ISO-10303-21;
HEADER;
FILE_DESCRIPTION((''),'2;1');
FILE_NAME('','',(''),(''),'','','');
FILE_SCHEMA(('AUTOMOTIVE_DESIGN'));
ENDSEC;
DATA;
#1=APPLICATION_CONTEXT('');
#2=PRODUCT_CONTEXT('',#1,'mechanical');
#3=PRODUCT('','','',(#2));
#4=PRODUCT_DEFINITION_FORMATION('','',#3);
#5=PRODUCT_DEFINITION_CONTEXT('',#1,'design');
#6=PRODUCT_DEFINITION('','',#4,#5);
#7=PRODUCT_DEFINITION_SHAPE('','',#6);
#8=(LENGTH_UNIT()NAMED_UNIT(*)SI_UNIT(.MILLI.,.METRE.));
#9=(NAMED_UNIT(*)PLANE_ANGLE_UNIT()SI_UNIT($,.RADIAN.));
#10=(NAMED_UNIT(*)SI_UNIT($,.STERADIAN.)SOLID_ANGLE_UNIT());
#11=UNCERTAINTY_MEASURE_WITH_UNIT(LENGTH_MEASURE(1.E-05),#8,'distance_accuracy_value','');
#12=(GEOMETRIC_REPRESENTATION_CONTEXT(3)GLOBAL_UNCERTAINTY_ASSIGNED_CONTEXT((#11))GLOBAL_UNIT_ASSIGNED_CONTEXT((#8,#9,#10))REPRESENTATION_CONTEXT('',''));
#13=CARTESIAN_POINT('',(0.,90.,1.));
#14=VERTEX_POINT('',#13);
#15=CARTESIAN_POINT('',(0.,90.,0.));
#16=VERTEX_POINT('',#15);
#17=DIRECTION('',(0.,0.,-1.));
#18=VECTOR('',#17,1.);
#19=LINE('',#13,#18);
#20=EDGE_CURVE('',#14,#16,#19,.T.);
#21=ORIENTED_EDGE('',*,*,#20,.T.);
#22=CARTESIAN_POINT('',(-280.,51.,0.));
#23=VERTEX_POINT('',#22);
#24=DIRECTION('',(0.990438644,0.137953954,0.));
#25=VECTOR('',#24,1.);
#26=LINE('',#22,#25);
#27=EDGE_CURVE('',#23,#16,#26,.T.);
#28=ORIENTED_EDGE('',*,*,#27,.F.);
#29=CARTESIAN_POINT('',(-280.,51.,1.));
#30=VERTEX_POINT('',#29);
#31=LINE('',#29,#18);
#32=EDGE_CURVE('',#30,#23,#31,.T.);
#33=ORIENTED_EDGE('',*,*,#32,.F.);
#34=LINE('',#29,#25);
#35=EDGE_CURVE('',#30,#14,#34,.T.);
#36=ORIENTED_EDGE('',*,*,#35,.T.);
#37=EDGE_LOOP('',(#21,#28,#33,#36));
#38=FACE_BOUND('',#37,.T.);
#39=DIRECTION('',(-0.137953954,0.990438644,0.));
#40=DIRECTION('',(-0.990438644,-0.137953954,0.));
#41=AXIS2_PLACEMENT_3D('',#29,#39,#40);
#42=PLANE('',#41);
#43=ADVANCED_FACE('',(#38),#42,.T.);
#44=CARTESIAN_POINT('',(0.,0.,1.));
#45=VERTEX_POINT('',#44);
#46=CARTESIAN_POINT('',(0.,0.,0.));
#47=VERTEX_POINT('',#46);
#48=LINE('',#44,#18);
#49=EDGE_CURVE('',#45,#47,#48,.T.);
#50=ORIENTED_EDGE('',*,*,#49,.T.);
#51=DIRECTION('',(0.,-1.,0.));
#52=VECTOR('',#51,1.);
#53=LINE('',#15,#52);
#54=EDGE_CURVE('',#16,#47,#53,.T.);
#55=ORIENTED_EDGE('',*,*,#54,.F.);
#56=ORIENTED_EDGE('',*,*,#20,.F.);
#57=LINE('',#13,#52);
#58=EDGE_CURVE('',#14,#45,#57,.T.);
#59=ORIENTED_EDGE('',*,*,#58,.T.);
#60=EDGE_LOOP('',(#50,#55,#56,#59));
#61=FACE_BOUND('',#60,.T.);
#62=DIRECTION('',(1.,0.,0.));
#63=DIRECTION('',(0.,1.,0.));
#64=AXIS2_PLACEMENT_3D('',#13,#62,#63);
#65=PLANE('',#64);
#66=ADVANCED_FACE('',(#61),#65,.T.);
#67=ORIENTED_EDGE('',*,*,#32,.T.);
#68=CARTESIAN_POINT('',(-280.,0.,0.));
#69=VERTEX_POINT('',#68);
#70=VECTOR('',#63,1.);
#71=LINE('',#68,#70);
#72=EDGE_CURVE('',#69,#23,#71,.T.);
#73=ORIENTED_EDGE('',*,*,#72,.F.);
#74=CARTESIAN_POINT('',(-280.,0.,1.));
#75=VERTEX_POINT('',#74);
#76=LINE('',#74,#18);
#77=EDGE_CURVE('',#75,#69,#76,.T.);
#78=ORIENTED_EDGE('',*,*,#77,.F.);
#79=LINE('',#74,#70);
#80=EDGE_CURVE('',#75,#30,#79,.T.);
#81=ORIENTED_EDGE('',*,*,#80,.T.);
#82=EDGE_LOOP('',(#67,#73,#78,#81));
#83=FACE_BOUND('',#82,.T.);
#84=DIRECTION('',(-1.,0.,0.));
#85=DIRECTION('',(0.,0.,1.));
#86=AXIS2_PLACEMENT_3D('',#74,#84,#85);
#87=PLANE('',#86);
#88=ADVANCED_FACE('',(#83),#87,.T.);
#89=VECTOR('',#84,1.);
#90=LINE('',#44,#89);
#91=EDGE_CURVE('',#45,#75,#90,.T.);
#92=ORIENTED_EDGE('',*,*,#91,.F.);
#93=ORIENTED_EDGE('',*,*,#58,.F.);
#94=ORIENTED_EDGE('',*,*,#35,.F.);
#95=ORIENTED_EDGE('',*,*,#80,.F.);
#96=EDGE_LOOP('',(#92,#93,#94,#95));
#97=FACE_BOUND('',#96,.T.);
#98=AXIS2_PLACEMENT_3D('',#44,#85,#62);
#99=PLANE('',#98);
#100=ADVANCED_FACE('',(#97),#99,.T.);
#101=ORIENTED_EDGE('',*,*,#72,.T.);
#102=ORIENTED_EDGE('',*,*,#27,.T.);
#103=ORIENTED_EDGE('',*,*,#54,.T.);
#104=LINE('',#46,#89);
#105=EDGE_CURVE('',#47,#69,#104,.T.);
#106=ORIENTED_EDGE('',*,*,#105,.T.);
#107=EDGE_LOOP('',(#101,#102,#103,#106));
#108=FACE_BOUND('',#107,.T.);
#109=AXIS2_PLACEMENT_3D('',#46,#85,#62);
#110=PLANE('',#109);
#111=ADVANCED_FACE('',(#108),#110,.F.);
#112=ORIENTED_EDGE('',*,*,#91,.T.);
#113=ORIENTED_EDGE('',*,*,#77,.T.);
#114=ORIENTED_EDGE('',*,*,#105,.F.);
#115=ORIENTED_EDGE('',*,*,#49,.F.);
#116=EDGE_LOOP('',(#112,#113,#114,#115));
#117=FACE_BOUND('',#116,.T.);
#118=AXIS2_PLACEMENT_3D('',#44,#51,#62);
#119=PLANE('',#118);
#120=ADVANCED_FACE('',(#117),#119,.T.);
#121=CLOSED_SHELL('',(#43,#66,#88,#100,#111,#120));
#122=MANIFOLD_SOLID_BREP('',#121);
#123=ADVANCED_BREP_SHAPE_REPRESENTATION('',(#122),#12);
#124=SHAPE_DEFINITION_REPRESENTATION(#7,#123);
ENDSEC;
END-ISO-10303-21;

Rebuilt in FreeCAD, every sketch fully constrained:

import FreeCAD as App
import Part
import Sketcher
from FreeCAD import Vector


def add_polygon(sketch, points):
    """Adds a closed chain of lines whose ends are joined by coincident constraints."""
    first, n = sketch.GeometryCount, len(points)
    for a, b in zip(points, points[1:] + points[:1]):
        sketch.addGeometry(Part.LineSegment(App.Vector(*a, 0), App.Vector(*b, 0)), False)
    for i in range(n):
        sketch.addConstraint(Sketcher.Constraint("Coincident", first + i, 2, first + (i + 1) % n, 1))

doc = App.newDocument("Part")
body = doc.addObject("PartDesign::Body", "Body")

# Sketch on XY plane
sketch1 = doc.addObject("Sketcher::SketchObject", "Sketch")
body.addObject(sketch1)
sketch1.AttachmentSupport = (doc.XY_Plane, [""])
sketch1.MapMode = "FlatFace"
add_polygon(sketch1, [(-280, 0), (0, 0), (0, 90), (-280, 51)])  # lines 0-3
sketch1.addConstraint([
    Sketcher.Constraint("Horizontal", 0),
    Sketcher.Constraint("Vertical", 1),
    Sketcher.Constraint("Vertical", 3),
    Sketcher.Constraint("Coincident", 0, 2, -1, 1),
    Sketcher.Constraint("DistanceX", 0, 1, 0, 2, 280.0),
    Sketcher.Constraint("DistanceY", 1, 1, 1, 2, 90.0),
    Sketcher.Constraint("DistanceY", 3, 2, 3, 1, 51.0),
])
pad1 = doc.addObject("PartDesign::Pad", "Pad")
body.addObject(pad1)
pad1.Profile = sketch1
pad1.Length = 1

doc.recompute()
